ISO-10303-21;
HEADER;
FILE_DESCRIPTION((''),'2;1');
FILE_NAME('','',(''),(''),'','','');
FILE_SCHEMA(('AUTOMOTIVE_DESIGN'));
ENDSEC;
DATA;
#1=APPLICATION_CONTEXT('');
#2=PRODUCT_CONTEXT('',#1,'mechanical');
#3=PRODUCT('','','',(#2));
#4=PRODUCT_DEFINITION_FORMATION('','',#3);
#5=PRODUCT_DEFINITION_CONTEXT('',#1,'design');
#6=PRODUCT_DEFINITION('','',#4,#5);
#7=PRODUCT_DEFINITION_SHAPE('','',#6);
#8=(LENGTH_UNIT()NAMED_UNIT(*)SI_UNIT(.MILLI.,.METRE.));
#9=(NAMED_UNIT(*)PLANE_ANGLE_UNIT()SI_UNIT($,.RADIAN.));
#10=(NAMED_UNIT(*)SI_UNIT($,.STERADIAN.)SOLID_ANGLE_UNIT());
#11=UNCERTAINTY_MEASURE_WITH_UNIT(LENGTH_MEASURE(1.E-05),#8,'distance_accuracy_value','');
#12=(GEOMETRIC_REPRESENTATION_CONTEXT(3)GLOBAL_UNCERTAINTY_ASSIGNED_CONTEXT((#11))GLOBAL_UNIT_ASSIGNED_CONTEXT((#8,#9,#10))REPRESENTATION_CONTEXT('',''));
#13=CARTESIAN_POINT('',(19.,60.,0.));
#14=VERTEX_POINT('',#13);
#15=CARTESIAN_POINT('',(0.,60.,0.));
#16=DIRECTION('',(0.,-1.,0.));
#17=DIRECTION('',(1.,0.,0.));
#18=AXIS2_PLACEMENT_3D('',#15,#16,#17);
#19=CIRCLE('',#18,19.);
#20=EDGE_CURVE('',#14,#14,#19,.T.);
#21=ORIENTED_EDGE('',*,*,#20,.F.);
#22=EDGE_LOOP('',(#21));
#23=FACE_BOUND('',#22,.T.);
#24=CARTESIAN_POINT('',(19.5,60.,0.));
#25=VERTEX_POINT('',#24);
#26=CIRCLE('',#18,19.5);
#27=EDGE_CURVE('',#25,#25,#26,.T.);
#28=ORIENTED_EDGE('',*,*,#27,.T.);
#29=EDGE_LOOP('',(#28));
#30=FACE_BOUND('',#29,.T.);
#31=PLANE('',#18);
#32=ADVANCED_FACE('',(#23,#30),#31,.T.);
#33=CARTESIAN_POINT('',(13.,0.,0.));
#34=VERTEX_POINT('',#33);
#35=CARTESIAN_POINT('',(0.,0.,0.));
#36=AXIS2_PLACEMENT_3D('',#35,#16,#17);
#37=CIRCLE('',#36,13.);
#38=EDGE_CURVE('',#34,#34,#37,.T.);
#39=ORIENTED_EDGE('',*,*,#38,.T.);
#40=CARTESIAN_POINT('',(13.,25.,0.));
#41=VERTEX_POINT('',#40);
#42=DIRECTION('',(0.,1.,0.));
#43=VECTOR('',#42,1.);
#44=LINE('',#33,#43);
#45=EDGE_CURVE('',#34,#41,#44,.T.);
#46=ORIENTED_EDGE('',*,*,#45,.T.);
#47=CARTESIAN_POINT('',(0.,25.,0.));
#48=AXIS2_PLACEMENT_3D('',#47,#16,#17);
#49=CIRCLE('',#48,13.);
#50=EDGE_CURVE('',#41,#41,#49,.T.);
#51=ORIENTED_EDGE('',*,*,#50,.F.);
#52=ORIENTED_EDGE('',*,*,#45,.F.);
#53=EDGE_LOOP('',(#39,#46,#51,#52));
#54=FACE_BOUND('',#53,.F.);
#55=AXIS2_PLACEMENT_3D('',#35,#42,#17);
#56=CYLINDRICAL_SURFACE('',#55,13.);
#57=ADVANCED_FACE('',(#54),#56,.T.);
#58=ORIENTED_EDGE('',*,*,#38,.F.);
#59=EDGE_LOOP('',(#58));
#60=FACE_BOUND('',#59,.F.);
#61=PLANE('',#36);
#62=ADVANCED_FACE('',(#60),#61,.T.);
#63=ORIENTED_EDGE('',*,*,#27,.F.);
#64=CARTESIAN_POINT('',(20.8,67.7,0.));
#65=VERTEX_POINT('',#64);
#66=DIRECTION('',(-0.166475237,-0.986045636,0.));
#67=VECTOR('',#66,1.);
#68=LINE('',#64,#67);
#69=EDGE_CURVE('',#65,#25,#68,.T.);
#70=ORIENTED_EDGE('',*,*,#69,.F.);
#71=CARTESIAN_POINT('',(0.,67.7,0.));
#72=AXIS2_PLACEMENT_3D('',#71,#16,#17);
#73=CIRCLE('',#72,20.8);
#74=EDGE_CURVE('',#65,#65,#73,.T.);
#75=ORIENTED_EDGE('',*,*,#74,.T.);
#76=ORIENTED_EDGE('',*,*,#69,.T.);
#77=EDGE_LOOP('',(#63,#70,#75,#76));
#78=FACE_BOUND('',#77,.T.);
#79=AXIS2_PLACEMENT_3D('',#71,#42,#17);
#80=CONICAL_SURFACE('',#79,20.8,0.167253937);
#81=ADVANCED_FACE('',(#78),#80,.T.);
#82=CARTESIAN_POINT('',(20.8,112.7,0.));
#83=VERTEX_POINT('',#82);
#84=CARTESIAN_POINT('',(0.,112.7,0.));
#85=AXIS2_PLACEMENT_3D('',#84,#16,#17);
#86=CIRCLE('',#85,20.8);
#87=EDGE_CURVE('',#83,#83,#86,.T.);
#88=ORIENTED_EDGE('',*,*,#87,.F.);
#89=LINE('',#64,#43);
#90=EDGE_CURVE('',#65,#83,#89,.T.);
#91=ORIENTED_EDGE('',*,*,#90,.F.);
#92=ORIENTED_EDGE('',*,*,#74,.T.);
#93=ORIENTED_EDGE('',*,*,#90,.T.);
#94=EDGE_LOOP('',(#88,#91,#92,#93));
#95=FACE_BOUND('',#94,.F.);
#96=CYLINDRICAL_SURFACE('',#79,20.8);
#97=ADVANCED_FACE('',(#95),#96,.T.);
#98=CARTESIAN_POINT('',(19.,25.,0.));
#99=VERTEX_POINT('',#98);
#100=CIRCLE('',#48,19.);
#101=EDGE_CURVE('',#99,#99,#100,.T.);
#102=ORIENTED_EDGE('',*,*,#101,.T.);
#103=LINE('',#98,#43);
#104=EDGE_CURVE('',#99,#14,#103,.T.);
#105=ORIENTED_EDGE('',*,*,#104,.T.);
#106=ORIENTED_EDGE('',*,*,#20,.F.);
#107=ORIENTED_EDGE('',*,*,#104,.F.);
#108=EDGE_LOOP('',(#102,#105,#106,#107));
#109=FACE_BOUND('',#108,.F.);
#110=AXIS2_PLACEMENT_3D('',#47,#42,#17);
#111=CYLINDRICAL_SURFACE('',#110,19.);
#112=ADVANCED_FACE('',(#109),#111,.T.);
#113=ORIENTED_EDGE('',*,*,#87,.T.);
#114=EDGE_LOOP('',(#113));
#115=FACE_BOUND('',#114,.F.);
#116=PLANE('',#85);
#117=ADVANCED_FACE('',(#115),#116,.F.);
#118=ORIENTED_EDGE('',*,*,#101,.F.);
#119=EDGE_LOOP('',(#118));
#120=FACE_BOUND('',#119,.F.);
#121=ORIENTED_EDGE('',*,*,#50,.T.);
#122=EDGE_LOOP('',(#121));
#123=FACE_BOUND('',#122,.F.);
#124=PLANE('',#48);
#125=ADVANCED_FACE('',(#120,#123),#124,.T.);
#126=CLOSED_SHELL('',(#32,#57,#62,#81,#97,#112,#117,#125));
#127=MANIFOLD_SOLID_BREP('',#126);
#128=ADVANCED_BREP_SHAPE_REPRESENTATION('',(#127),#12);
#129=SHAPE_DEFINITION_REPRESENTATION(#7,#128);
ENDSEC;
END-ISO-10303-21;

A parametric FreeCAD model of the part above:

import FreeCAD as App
import Part
import Sketcher
Q = App.Units.Quantity

doc = App.newDocument("Part")
body = doc.addObject("PartDesign::Body", "Body")

# Sketch on XY plane
sketch1 = body.newObject("Sketcher::SketchObject", "Sketch")
sketch1.AttachmentSupport = (doc.getObject("XY_Plane"), [""])
sketch1.MapMode = "FlatFace"
sketch1.addGeometry([
    Part.LineSegment(App.Vector(0, 112.7, 0), App.Vector(0, 0, 0)),  # 0
    Part.LineSegment(App.Vector(0, 0, 0), App.Vector(13, 0, 0)),  # 1
    Part.LineSegment(App.Vector(13, 0, 0), App.Vector(13, 25, 0)),  # 2
    Part.LineSegment(App.Vector(13, 25, 0), App.Vector(19, 25, 0)),  # 3
    Part.LineSegment(App.Vector(19, 25, 0), App.Vector(19, 60, 0)),  # 4
    Part.LineSegment(App.Vector(19, 60, 0), App.Vector(19.5, 60, 0)),  # 5
    Part.LineSegment(App.Vector(19.5, 60, 0), App.Vector(20.8, 67.7, 0)),  # 6
    Part.LineSegment(App.Vector(20.8, 67.7, 0), App.Vector(20.8, 112.7, 0)),  # 7
    Part.LineSegment(App.Vector(20.8, 112.7, 0), App.Vector(0, 112.7, 0)),  # 8
], False)
sketch1.addConstraint([
    Sketcher.Constraint("Coincident", 0, 2, 1, 1),
    Sketcher.Constraint("Coincident", 1, 2, 2, 1),
    Sketcher.Constraint("Coincident", 2, 2, 3, 1),
    Sketcher.Constraint("Coincident", 3, 2, 4, 1),
    Sketcher.Constraint("Coincident", 4, 2, 5, 1),
    Sketcher.Constraint("Coincident", 5, 2, 6, 1),
    Sketcher.Constraint("Coincident", 6, 2, 7, 1),
    Sketcher.Constraint("Coincident", 7, 2, 8, 1),
    Sketcher.Constraint("Coincident", 8, 2, 0, 1),
    Sketcher.Constraint("Vertical", 0),
    Sketcher.Constraint("Horizontal", 1),
    Sketcher.Constraint("Vertical", 2),
    Sketcher.Constraint("Horizontal", 3),
    Sketcher.Constraint("Vertical", 4),
    Sketcher.Constraint("Horizontal", 5),
    Sketcher.Constraint("Vertical", 7),
    Sketcher.Constraint("Horizontal", 8),
    Sketcher.Constraint("Coincident", 0, 2, -1, 1),
    Sketcher.Constraint("DistanceX", 1, 1, 1, 2, Q("13 mm")),
    Sketcher.Constraint("DistanceX", 3, 1, 3, 2, Q("6 mm")),
    Sketcher.Constraint("DistanceY", 2, 1, 2, 2, Q("25 mm")),
    Sketcher.Constraint("DistanceY", 4, 1, 4, 2, Q("35 mm")),
    Sketcher.Constraint("DistanceY", 7, 1, 7, 2, Q("45 mm")),
    Sketcher.Constraint("DistanceX", 5, 1, 5, 2, Q("0.5 mm")),
    Sketcher.Constraint("DistanceX", 8, 2, 8, 1, Q("20.8 mm")),
    Sketcher.Constraint("DistanceY", 5, 2, 6, 2, Q("7.7 mm")),
])
revolution = body.newObject("PartDesign::Revolution", "Revolution")
revolution.Profile = sketch1
revolution.ReferenceAxis = (sketch1, ["V_Axis"])
revolution.Angle = 360

doc.recompute()
